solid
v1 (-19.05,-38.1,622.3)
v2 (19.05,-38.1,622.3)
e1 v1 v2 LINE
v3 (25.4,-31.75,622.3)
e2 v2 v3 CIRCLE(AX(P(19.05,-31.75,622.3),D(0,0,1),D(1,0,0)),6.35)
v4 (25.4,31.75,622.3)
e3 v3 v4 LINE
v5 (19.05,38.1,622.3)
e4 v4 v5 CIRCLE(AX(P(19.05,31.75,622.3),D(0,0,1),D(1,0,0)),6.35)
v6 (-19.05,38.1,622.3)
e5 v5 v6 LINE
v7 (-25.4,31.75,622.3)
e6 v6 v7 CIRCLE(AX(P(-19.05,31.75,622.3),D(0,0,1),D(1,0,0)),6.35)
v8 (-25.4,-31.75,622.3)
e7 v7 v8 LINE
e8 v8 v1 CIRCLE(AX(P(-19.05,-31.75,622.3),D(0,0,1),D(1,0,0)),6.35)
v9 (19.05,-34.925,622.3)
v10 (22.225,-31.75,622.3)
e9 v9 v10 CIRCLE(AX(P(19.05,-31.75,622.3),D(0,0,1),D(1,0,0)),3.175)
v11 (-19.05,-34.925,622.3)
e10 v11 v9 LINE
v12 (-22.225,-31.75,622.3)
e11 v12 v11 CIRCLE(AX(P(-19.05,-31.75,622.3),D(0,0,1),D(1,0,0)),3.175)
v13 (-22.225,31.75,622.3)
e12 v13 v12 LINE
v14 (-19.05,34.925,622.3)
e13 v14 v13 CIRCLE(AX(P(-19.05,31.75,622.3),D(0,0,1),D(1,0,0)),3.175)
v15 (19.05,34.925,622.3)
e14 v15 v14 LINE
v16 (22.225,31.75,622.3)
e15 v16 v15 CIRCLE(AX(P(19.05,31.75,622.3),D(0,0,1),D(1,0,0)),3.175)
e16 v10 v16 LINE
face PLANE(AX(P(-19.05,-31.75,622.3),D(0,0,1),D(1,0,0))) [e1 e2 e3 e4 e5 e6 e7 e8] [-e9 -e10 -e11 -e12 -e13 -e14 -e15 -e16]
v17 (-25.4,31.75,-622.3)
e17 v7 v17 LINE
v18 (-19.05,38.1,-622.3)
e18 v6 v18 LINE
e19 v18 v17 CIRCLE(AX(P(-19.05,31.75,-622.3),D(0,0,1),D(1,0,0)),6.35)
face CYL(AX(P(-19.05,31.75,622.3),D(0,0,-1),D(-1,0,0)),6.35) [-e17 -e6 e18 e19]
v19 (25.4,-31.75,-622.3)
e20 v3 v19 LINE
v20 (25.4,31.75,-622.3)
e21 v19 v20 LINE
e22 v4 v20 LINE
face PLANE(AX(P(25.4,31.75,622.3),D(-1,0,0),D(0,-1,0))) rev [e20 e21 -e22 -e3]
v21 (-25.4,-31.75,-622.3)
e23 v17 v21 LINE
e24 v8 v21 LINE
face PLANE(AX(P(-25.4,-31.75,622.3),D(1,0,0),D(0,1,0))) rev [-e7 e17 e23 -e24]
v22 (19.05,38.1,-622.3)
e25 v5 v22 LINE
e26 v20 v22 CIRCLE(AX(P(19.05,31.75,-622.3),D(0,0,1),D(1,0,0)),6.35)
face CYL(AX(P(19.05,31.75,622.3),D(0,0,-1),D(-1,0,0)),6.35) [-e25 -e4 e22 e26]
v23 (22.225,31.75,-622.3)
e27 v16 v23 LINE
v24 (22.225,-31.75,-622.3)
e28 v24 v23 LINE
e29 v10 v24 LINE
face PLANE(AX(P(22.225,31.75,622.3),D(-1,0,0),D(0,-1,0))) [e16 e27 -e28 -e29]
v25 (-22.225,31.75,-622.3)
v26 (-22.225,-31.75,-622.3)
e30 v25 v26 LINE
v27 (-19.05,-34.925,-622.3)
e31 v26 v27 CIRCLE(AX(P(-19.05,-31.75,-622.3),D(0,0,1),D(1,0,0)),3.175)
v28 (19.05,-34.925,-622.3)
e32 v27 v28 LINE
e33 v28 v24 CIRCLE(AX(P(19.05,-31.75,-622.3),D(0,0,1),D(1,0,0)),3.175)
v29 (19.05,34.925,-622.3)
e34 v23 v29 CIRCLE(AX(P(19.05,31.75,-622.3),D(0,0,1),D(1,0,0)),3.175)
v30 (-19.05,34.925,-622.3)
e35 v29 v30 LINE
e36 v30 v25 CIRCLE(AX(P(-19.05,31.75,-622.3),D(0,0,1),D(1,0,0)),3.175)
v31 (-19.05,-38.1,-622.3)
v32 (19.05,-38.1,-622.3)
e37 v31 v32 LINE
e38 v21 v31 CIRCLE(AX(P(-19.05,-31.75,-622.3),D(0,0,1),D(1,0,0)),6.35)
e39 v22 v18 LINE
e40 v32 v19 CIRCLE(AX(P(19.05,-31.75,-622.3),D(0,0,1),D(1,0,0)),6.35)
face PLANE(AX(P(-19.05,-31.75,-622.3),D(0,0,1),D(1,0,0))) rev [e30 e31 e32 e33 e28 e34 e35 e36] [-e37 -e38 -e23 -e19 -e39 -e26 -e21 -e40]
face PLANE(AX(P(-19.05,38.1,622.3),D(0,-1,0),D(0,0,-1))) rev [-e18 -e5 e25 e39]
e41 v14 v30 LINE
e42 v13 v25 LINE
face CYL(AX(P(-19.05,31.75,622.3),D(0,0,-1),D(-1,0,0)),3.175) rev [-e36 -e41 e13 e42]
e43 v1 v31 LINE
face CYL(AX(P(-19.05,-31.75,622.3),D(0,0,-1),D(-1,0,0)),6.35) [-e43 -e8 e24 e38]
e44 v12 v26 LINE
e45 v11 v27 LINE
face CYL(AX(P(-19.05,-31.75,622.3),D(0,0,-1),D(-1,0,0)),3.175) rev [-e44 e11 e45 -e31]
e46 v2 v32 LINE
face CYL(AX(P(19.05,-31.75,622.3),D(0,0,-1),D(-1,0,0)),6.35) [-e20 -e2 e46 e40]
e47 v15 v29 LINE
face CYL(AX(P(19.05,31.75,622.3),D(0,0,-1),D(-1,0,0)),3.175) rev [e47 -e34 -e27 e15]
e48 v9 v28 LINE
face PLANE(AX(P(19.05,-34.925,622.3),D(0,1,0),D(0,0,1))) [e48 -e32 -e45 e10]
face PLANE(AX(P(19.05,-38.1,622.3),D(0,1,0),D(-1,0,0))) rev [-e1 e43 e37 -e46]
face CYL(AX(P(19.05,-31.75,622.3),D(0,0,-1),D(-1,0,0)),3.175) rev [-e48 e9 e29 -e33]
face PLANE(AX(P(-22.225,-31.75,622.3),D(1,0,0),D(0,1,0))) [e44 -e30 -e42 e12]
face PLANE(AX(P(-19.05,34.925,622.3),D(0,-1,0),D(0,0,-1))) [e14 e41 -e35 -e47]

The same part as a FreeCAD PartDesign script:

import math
import FreeCAD as App
import Part
import Sketcher
Q = App.Units.Quantity

doc = App.newDocument("Part")
params = doc.addObject("Spreadsheet::Sheet", "Params")
for row, (alias, value) in enumerate([
    ("sketch1_radius", "0.25 in"),
    ("sketch1_width", "1.5 in"),
    ("sketch1_height", "2.5 in"),
    ("sketch1_radius2", "0.125 in"),
    ("pad1_length", "49 in"),
], start=1):
    params.set(f"A{row}", alias)
    params.set(f"B{row}", "=" + value)
    params.setAlias(f"B{row}", alias)

body = doc.addObject("PartDesign::Body", "Body")

# Sketch on XY plane
sketch1 = body.newObject("Sketcher::SketchObject", "Sketch")
sketch1.AttachmentSupport = (doc.getObject("XY_Plane"), [""])
sketch1.MapMode = "FlatFace"
sketch1.addGeometry(Part.LineSegment(App.Vector(-19.05, -38.1, 0), App.Vector(19.05, -38.1, 0)), False)
sketch1.addGeometry(Part.ArcOfCircle(Part.Circle(App.Vector(19.05, -31.75, 0), App.Vector(0, 0, 1), 6.35), math.radians(-90), math.radians(0)), False)
sketch1.addGeometry(Part.LineSegment(App.Vector(25.4, -31.75, 0), App.Vector(25.4, 31.75, 0)), False)
sketch1.addGeometry(Part.ArcOfCircle(Part.Circle(App.Vector(19.05, 31.75, 0), App.Vector(0, 0, 1), 6.35), math.radians(0), math.radians(90)), False)
sketch1.addGeometry(Part.LineSegment(App.Vector(19.05, 38.1, 0), App.Vector(-19.05, 38.1, 0)), False)
sketch1.addGeometry(Part.ArcOfCircle(Part.Circle(App.Vector(-19.05, 31.75, 0), App.Vector(0, 0, 1), 6.35), math.radians(90), math.radians(180)), False)
sketch1.addGeometry(Part.LineSegment(App.Vector(-25.4, 31.75, 0), App.Vector(-25.4, -31.75, 0)), False)
sketch1.addGeometry(Part.ArcOfCircle(Part.Circle(App.Vector(-19.05, -31.75, 0), App.Vector(0, 0, 1), 6.35), math.radians(180), math.radians(270)), False)
sketch1.addGeometry(Part.LineSegment(App.Vector(19.05, -34.925, 0), App.Vector(-19.05, -34.925, 0)), False)
sketch1.addGeometry(Part.ArcOfCircle(Part.Circle(App.Vector(-19.05, -31.75, 0), App.Vector(0, 0, 1), 3.175), math.radians(-180), math.radians(-90)), False)
sketch1.addGeometry(Part.LineSegment(App.Vector(-22.225, -31.75, 0), App.Vector(-22.225, 31.75, 0)), False)
sketch1.addGeometry(Part.ArcOfCircle(Part.Circle(App.Vector(-19.05, 31.75, 0), App.Vector(0, 0, 1), 3.175), math.radians(90), math.radians(180)), False)
sketch1.addGeometry(Part.LineSegment(App.Vector(-19.05, 34.925, 0), App.Vector(19.05, 34.925, 0)), False)
sketch1.addGeometry(Part.ArcOfCircle(Part.Circle(App.Vector(19.05, 31.75, 0), App.Vector(0, 0, 1), 3.175), math.radians(0), math.radians(90)), False)
sketch1.addGeometry(Part.LineSegment(App.Vector(22.225, 31.75, 0), App.Vector(22.225, -31.75, 0)), False)
sketch1.addGeometry(Part.ArcOfCircle(Part.Circle(App.Vector(19.05, -31.75, 0), App.Vector(0, 0, 1), 3.175), math.radians(-90), math.radians(0)), False)
sketch1.addConstraint(Sketcher.Constraint("Tangent", 0, 2, 1, 1))
sketch1.addConstraint(Sketcher.Constraint("Tangent", 1, 2, 2, 1))
sketch1.addConstraint(Sketcher.Constraint("Tangent", 2, 2, 3, 1))
sketch1.addConstraint(Sketcher.Constraint("Tangent", 3, 2, 4, 1))
sketch1.addConstraint(Sketcher.Constraint("Tangent", 4, 2, 5, 1))
sketch1.addConstraint(Sketcher.Constraint("Tangent", 5, 2, 6, 1))
sketch1.addConstraint(Sketcher.Constraint("Tangent", 6, 2, 7, 1))
sketch1.addConstraint(Sketcher.Constraint("Tangent", 7, 2, 0, 1))
sketch1.addConstraint(Sketcher.Constraint("Tangent", 8, 2, 9, 2))
sketch1.addConstraint(Sketcher.Constraint("Tangent", 9, 1, 10, 1))
sketch1.addConstraint(Sketcher.Constraint("Tangent", 10, 2, 11, 2))
sketch1.addConstraint(Sketcher.Constraint("Tangent", 11, 1, 12, 1))
sketch1.addConstraint(Sketcher.Constraint("Tangent", 12, 2, 13, 2))
sketch1.addConstraint(Sketcher.Constraint("Tangent", 13, 1, 14, 1))
sketch1.addConstraint(Sketcher.Constraint("Tangent", 14, 2, 15, 2))
sketch1.addConstraint(Sketcher.Constraint("Tangent", 15, 1, 8, 1))
sketch1.addConstraint(Sketcher.Constraint("Horizontal", 0))
sketch1.addConstraint(Sketcher.Constraint("Vertical", 2))
sketch1.addConstraint(Sketcher.Constraint("Horizontal", 4))
sketch1.addConstraint(Sketcher.Constraint("Vertical", 6))
sketch1.addConstraint(Sketcher.Constraint("Horizontal", 8))
sketch1.addConstraint(Sketcher.Constraint("Vertical", 10))
sketch1.addConstraint(Sketcher.Constraint("Horizontal", 12))
sketch1.addConstraint(Sketcher.Constraint("Vertical", 14))
sketch1.addConstraint(Sketcher.Constraint("Coincident", 9, 3, 7, 3))
sketch1.addConstraint(Sketcher.Constraint("Coincident", 11, 3, 5, 3))
sketch1.addConstraint(Sketcher.Constraint("Coincident", 13, 3, 3, 3))
sketch1.addConstraint(Sketcher.Constraint("Equal", 1, 3))
sketch1.addConstraint(Sketcher.Constraint("Equal", 3, 5))
sketch1.addConstraint(Sketcher.Constraint("Equal", 5, 7))
sketch1.addConstraint(Sketcher.Constraint("Equal", 13, 15))
sketch1.addConstraint(Sketcher.Constraint("Symmetric", 1, 3, 5, 3, -1, 1))
sketch1.addConstraint(Sketcher.Constraint("Radius", 1, Q("0.25 in")))
sketch1.addConstraint(Sketcher.Constraint("DistanceX", 0, 1, 0, 2, Q("1.5 in")))
sketch1.addConstraint(Sketcher.Constraint("DistanceY", 2, 1, 2, 2, Q("2.5 in")))
sketch1.addConstraint(Sketcher.Constraint("Radius", 9, Q("0.125 in")))
sketch1.setExpression("Constraints[32]", "Params.sketch1_radius")
sketch1.setExpression("Constraints[33]", "Params.sketch1_width")
sketch1.setExpression("Constraints[34]", "Params.sketch1_height")
sketch1.setExpression("Constraints[35]", "Params.sketch1_radius2")
pad1 = body.newObject("PartDesign::Pad", "Pad")
pad1.Profile = sketch1
pad1.setExpression("Length", "Params.pad1_length")
pad1.Midplane = True

doc.recompute()
